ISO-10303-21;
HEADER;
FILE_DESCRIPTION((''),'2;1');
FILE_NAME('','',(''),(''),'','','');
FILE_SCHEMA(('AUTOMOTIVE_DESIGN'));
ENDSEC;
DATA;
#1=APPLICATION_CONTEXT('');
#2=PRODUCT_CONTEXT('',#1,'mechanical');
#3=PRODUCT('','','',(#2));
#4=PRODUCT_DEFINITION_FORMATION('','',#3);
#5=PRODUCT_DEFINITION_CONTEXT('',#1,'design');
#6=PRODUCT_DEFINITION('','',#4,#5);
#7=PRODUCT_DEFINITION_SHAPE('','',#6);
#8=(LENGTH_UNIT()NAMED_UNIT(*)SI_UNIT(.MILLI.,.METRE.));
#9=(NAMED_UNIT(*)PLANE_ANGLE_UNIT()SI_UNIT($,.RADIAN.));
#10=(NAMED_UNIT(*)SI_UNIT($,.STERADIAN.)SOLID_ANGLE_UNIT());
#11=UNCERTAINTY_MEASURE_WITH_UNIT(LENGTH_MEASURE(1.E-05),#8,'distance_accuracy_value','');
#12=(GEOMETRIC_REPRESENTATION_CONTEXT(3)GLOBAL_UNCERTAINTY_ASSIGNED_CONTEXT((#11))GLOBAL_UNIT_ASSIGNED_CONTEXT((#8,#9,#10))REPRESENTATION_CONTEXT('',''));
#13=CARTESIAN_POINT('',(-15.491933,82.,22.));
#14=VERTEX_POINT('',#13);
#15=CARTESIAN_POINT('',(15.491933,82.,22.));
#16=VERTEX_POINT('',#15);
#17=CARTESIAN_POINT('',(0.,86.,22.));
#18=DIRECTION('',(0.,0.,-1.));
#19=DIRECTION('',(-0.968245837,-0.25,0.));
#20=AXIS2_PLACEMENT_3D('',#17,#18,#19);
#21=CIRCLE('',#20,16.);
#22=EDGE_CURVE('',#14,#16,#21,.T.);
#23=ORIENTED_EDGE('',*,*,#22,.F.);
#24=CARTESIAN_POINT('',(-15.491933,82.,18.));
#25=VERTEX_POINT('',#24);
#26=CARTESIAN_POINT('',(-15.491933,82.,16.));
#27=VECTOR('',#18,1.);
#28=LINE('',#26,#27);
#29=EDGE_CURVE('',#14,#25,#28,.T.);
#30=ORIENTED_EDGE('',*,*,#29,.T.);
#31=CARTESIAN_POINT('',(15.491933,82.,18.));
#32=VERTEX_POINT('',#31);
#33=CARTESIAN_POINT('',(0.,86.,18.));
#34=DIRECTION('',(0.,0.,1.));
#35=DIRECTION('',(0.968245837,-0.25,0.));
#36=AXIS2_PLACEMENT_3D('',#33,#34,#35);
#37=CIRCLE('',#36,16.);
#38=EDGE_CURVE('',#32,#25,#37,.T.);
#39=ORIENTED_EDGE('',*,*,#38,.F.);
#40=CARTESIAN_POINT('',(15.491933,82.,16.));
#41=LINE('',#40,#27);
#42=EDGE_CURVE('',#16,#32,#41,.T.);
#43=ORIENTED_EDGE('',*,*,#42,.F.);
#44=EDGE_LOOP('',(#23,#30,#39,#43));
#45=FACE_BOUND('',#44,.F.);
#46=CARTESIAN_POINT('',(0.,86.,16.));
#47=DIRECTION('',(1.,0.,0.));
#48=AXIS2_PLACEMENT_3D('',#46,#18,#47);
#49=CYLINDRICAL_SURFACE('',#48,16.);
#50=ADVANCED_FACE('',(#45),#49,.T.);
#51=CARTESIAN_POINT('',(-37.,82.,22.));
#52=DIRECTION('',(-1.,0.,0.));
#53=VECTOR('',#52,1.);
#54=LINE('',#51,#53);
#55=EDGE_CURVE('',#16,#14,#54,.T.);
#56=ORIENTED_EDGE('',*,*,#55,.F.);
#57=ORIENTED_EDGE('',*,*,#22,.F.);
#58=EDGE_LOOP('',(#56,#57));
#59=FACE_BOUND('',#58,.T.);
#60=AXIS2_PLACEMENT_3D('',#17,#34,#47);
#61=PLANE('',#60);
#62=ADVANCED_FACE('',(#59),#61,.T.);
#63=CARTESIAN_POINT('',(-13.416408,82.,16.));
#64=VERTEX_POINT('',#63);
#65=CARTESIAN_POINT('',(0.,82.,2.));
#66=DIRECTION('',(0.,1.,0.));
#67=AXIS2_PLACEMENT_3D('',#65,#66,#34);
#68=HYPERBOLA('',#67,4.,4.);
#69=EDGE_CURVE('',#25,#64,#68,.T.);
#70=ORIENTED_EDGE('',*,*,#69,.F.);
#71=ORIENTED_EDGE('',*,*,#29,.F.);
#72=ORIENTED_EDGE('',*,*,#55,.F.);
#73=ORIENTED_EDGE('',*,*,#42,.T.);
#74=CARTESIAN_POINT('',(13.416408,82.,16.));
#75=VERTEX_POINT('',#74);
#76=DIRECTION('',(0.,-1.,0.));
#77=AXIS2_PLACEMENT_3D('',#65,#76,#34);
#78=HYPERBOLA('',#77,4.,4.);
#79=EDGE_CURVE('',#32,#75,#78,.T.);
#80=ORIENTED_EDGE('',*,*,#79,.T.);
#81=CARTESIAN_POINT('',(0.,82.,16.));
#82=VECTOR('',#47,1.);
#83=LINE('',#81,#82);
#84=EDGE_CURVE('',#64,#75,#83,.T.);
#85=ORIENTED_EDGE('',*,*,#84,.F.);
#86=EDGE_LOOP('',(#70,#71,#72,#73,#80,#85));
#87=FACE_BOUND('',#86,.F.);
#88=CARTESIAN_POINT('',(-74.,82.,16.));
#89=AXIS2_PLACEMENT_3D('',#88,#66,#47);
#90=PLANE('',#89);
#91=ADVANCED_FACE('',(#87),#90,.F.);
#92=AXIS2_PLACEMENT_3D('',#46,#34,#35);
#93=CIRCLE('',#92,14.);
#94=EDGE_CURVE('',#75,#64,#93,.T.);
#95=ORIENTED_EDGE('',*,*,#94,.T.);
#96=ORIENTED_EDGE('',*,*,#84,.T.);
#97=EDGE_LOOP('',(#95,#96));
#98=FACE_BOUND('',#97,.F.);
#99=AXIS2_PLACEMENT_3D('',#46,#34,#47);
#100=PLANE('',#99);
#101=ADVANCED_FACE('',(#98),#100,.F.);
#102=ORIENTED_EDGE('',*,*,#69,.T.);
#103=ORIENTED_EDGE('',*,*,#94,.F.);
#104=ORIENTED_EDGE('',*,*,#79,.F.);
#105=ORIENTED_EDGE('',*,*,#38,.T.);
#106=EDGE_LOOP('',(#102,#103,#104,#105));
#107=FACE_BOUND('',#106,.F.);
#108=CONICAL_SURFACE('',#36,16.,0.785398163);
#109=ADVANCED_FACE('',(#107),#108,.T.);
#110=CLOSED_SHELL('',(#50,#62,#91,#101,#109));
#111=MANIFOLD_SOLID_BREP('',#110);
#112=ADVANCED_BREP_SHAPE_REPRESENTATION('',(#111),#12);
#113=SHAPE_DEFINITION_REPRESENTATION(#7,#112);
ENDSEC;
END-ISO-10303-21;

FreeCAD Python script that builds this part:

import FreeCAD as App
import Part
import Sketcher


def edges_at(feature, points):
    """Names of the edges that pass closest to the given points."""
    edges = feature.Shape.Edges
    near = lambda p: min(range(len(edges)), key=lambda i: edges[i].distToShape(Part.Vertex(*p))[0])
    return sorted({f"Edge{near(p) + 1}" for p in points})

doc = App.newDocument("Part")
body = doc.addObject("PartDesign::Body", "Body")

sketch1 = doc.addObject("Sketcher::SketchObject", "Sketch")
body.addObject(sketch1)
sketch1.AttachmentSupport = (doc.XY_Plane, [""])
sketch1.MapMode = "FlatFace"
sketch1.AttachmentOffset = App.Placement(App.Vector(0, 0, 16), App.Rotation())
sketch1.addGeometry([
    Part.LineSegment(App.Vector(-74, 82, 0), App.Vector(-74, 42, 0)),
    Part.LineSegment(App.Vector(-74, 42, 0), App.Vector(74, 42, 0)),
    Part.LineSegment(App.Vector(74, 42, 0), App.Vector(74, 82, 0)),
    Part.LineSegment(App.Vector(74, 82, 0), App.Vector(-74, 82, 0)),
], False)
sketch1.addConstraint([
    Sketcher.Constraint("Coincident", 0, 2, 1, 1),
    Sketcher.Constraint("Coincident", 1, 2, 2, 1),
    Sketcher.Constraint("Coincident", 2, 2, 3, 1),
    Sketcher.Constraint("Coincident", 3, 2, 0, 1),
    Sketcher.Constraint("Vertical", 0),
    Sketcher.Constraint("Horizontal", 1),
    Sketcher.Constraint("Vertical", 2),
    Sketcher.Constraint("Horizontal", 3),
    Sketcher.Constraint("DistanceX", 1, 1, 1, 2, 148.0),
    Sketcher.Constraint("DistanceY", 0, 2, 0, 1, 40.0),
    Sketcher.Constraint("DistanceX", 0, 2, -1, 1, 74.0),
    Sketcher.Constraint("DistanceY", -1, 1, 0, 2, 42.0),
])
pad1 = doc.addObject("PartDesign::Pad", "Pad")
body.addObject(pad1)
pad1.Profile = sketch1
pad1.Length = 40
body2 = doc.addObject("PartDesign::Body", "Body001")

sketch2 = doc.addObject("Sketcher::SketchObject", "Sketch001")
body2.addObject(sketch2)
sketch2.AttachmentSupport = (doc.getObject("XY_Plane001"), [""])
sketch2.MapMode = "FlatFace"
sketch2.AttachmentOffset = App.Placement(App.Vector(0, 0, 16), App.Rotation())
sketch2.addGeometry(Part.Circle(App.Vector(0, 86, 0), App.Vector(0, 0, 1), 16), False)
sketch2.addConstraint([
    Sketcher.Constraint("PointOnObject", 0, 3, -2),
    Sketcher.Constraint("Diameter", 0, 32.0),
    Sketcher.Constraint("DistanceY", -1, 1, 0, 3, 86.0),
])
pad2 = doc.addObject("PartDesign::Pad", "Pad001")
body2.addObject(pad2)
pad2.Profile = sketch2
pad2.Length = 6
doc.recompute()

boolean = doc.addObject("PartDesign::Boolean", "Boolean")
body2.addObject(boolean)
boolean.Type = "Cut"
boolean.addObjects([body])
doc.recompute()

chamfer = doc.addObject("PartDesign::Chamfer", "Chamfer")
body2.addObject(chamfer)
chamfer.Base = (boolean, edges_at(boolean, [(0, 102, 16)]))
chamfer.Size = 2

doc.recompute()
